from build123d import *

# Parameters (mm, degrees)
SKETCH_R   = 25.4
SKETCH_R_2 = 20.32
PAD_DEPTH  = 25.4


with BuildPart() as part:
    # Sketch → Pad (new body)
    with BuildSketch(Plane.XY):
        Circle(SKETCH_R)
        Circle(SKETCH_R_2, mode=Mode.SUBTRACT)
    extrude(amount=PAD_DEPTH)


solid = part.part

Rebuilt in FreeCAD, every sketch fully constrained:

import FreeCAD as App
import Part
import Sketcher
Q = App.Units.Quantity

doc = App.newDocument("Part")
body = doc.addObject("PartDesign::Body", "Body")

sketch1 = body.newObject("Sketcher::SketchObject", "Sketch")
sketch1.AttachmentSupport = (doc.getObject("XY_Plane"), [""])
sketch1.MapMode = "FlatFace"
sketch1.addGeometry([
    Part.Circle(App.Vector(0, 0, 0), App.Vector(0, 0, 1), 25),
    Part.Circle(App.Vector(0, 0, 0), App.Vector(0, 0, 1), 20),
], False)
sketch1.addConstraint([
    Sketcher.Constraint("Coincident", 0, 3, -1, 1),
    Sketcher.Constraint("Coincident", 1, 3, -1, 1),
    Sketcher.Constraint("Diameter", 0, Q("2 in")),
    Sketcher.Constraint("Diameter", 1, Q("1.6 in")),
])
pad1 = body.newObject("PartDesign::Pad", "Pad")
pad1.Profile = sketch1
pad1.Length = Q("1 in")

doc.recompute()
